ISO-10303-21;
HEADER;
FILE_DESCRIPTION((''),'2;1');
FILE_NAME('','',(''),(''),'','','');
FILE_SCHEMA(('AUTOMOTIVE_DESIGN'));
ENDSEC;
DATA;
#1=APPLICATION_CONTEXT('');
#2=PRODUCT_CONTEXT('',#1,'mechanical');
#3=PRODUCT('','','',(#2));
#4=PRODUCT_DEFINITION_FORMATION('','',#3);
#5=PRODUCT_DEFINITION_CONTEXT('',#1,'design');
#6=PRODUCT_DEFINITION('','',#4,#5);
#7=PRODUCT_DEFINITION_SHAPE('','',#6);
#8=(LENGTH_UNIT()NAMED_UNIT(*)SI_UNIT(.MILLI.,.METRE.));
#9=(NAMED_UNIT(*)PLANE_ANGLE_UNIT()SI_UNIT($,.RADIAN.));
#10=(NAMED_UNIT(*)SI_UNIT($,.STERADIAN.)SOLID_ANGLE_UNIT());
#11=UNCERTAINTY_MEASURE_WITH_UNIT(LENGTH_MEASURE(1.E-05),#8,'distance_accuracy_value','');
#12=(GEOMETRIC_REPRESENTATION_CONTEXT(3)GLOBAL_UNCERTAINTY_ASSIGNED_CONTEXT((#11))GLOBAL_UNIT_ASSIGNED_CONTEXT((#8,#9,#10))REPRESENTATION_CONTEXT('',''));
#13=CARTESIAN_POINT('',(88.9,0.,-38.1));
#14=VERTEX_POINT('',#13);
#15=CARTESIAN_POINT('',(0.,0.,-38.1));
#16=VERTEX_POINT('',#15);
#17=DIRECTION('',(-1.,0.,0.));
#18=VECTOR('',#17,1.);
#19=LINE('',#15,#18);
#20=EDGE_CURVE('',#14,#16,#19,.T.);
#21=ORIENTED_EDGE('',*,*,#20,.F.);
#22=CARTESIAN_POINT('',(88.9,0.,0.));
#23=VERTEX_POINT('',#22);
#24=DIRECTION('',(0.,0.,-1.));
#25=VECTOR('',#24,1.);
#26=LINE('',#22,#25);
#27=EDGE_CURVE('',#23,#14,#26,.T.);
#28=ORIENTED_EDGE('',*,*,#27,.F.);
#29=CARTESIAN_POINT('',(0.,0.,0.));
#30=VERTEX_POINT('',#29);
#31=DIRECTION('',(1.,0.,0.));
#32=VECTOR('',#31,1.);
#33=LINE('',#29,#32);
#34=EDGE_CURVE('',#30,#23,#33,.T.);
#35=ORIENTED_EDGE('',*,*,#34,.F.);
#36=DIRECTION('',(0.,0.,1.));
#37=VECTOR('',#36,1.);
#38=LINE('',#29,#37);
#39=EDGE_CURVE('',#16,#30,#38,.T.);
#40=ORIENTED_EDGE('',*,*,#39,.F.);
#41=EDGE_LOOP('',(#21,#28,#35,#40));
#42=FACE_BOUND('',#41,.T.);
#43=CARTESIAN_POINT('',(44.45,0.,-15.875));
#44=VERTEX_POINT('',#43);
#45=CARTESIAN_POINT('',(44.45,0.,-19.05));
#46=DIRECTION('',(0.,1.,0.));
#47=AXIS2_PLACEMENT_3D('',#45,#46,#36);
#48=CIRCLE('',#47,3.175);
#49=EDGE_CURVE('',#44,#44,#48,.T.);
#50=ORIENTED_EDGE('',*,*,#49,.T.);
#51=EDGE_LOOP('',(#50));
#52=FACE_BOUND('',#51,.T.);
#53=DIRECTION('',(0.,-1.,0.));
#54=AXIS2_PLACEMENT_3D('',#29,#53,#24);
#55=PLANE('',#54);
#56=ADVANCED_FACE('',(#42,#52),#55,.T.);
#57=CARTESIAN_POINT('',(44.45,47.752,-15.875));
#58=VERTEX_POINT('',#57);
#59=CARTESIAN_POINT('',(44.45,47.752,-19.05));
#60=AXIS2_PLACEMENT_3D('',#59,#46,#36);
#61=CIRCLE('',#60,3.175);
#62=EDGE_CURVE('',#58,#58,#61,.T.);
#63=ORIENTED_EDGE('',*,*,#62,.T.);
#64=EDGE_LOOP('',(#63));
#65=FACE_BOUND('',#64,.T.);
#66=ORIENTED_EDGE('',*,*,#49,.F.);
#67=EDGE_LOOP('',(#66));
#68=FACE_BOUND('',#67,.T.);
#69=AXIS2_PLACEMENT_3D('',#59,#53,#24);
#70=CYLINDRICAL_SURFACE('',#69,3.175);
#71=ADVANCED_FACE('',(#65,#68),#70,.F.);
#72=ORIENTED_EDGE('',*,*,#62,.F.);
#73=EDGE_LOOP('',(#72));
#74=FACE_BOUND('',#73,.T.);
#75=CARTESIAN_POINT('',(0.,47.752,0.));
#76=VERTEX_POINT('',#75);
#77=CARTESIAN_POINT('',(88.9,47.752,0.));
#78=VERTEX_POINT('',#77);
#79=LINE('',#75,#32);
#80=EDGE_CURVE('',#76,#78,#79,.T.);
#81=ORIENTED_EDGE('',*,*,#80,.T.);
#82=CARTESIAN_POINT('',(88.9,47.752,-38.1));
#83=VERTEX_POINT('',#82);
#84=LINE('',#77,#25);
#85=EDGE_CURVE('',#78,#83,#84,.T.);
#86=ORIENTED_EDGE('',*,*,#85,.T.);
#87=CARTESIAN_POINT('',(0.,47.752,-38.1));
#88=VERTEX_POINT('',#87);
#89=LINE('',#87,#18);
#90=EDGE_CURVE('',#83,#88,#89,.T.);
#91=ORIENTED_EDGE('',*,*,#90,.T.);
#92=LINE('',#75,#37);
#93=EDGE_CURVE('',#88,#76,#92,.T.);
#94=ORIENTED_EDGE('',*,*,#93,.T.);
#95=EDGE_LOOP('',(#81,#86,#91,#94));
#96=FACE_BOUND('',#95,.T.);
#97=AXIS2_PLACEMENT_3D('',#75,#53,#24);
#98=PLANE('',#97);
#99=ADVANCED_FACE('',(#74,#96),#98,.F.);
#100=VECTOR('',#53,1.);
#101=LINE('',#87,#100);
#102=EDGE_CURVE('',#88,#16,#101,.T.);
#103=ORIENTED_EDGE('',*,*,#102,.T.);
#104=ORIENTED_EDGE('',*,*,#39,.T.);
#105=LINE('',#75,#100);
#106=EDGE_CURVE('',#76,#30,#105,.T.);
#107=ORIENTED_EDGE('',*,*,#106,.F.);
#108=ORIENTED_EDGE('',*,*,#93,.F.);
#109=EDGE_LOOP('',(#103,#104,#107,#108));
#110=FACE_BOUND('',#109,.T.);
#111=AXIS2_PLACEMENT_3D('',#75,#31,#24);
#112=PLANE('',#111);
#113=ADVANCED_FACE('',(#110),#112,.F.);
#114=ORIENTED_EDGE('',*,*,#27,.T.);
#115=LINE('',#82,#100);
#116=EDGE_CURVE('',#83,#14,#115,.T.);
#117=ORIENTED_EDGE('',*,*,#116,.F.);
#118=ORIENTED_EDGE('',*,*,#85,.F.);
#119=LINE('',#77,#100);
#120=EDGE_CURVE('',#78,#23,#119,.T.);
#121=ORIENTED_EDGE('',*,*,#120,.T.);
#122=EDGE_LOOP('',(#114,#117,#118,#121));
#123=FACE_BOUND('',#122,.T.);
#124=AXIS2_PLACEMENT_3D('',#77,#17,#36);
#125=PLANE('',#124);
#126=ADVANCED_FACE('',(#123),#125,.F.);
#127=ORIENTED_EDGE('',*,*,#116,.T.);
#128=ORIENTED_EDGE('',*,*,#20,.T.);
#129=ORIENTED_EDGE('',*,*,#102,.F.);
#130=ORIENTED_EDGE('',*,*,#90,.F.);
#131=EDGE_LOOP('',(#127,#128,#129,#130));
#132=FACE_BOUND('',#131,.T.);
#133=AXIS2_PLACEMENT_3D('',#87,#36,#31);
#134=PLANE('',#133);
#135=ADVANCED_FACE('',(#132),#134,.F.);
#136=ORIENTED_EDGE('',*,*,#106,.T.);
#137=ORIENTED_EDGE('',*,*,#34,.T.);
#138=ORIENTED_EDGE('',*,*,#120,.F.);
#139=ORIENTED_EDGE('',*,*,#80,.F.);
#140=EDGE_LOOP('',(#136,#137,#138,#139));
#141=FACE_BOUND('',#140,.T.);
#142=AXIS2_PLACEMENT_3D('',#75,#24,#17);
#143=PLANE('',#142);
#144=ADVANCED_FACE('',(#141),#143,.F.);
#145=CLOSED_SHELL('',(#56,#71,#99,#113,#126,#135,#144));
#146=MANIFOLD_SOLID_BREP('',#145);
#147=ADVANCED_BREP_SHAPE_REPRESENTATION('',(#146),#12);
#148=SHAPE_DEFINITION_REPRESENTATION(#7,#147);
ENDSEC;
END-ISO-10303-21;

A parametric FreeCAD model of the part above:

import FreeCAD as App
import Part
import Sketcher
from FreeCAD import Vector
Q = App.Units.Quantity


def add_polygon(sketch, points):
    """Adds a closed chain of lines whose ends are joined by coincident constraints."""
    first, n = sketch.GeometryCount, len(points)
    for a, b in zip(points, points[1:] + points[:1]):
        sketch.addGeometry(Part.LineSegment(App.Vector(*a, 0), App.Vector(*b, 0)), False)
    for i in range(n):
        sketch.addConstraint(Sketcher.Constraint("Coincident", first + i, 2, first + (i + 1) % n, 1))

doc = App.newDocument("Part")
body = doc.addObject("PartDesign::Body", "Body")

sketch1 = body.newObject("Sketcher::SketchObject", "Sketch")
sketch1.AttachmentSupport = (doc.getObject("XZ_Plane"), [""])
sketch1.MapMode = "FlatFace"
add_polygon(sketch1, [(0, -38.1), (0, 0), (88.9, 0), (88.9, -38.1)])
sketch1.addGeometry(Part.Circle(Vector(44.5, -19.1, 0), Vector(0, 0, 1), 3.2), False)
sketch1.addConstraint([
    Sketcher.Constraint("Vertical", 0),
    Sketcher.Constraint("Horizontal", 1),
    Sketcher.Constraint("Vertical", 2),
    Sketcher.Constraint("Horizontal", 3),
    Sketcher.Constraint("Coincident", 0, 2, -1, 1),
    Sketcher.Constraint("Diameter", 4, Q("0.25 in")),
    Sketcher.Constraint("DistanceX", 1, 1, 1, 2, Q("3.5 in")),
    Sketcher.Constraint("DistanceY", 0, 1, 0, 2, Q("1.5 in")),
    Sketcher.Constraint("DistanceX", -1, 1, 4, 3, Q("1.75 in")),
    Sketcher.Constraint("DistanceY", 4, 3, -1, 1, Q("0.75 in")),
])
pad1 = body.newObject("PartDesign::Pad", "Pad")
pad1.Profile = sketch1
pad1.Length = Q("1.88 in")
pad1.Reversed = True

doc.recompute()
